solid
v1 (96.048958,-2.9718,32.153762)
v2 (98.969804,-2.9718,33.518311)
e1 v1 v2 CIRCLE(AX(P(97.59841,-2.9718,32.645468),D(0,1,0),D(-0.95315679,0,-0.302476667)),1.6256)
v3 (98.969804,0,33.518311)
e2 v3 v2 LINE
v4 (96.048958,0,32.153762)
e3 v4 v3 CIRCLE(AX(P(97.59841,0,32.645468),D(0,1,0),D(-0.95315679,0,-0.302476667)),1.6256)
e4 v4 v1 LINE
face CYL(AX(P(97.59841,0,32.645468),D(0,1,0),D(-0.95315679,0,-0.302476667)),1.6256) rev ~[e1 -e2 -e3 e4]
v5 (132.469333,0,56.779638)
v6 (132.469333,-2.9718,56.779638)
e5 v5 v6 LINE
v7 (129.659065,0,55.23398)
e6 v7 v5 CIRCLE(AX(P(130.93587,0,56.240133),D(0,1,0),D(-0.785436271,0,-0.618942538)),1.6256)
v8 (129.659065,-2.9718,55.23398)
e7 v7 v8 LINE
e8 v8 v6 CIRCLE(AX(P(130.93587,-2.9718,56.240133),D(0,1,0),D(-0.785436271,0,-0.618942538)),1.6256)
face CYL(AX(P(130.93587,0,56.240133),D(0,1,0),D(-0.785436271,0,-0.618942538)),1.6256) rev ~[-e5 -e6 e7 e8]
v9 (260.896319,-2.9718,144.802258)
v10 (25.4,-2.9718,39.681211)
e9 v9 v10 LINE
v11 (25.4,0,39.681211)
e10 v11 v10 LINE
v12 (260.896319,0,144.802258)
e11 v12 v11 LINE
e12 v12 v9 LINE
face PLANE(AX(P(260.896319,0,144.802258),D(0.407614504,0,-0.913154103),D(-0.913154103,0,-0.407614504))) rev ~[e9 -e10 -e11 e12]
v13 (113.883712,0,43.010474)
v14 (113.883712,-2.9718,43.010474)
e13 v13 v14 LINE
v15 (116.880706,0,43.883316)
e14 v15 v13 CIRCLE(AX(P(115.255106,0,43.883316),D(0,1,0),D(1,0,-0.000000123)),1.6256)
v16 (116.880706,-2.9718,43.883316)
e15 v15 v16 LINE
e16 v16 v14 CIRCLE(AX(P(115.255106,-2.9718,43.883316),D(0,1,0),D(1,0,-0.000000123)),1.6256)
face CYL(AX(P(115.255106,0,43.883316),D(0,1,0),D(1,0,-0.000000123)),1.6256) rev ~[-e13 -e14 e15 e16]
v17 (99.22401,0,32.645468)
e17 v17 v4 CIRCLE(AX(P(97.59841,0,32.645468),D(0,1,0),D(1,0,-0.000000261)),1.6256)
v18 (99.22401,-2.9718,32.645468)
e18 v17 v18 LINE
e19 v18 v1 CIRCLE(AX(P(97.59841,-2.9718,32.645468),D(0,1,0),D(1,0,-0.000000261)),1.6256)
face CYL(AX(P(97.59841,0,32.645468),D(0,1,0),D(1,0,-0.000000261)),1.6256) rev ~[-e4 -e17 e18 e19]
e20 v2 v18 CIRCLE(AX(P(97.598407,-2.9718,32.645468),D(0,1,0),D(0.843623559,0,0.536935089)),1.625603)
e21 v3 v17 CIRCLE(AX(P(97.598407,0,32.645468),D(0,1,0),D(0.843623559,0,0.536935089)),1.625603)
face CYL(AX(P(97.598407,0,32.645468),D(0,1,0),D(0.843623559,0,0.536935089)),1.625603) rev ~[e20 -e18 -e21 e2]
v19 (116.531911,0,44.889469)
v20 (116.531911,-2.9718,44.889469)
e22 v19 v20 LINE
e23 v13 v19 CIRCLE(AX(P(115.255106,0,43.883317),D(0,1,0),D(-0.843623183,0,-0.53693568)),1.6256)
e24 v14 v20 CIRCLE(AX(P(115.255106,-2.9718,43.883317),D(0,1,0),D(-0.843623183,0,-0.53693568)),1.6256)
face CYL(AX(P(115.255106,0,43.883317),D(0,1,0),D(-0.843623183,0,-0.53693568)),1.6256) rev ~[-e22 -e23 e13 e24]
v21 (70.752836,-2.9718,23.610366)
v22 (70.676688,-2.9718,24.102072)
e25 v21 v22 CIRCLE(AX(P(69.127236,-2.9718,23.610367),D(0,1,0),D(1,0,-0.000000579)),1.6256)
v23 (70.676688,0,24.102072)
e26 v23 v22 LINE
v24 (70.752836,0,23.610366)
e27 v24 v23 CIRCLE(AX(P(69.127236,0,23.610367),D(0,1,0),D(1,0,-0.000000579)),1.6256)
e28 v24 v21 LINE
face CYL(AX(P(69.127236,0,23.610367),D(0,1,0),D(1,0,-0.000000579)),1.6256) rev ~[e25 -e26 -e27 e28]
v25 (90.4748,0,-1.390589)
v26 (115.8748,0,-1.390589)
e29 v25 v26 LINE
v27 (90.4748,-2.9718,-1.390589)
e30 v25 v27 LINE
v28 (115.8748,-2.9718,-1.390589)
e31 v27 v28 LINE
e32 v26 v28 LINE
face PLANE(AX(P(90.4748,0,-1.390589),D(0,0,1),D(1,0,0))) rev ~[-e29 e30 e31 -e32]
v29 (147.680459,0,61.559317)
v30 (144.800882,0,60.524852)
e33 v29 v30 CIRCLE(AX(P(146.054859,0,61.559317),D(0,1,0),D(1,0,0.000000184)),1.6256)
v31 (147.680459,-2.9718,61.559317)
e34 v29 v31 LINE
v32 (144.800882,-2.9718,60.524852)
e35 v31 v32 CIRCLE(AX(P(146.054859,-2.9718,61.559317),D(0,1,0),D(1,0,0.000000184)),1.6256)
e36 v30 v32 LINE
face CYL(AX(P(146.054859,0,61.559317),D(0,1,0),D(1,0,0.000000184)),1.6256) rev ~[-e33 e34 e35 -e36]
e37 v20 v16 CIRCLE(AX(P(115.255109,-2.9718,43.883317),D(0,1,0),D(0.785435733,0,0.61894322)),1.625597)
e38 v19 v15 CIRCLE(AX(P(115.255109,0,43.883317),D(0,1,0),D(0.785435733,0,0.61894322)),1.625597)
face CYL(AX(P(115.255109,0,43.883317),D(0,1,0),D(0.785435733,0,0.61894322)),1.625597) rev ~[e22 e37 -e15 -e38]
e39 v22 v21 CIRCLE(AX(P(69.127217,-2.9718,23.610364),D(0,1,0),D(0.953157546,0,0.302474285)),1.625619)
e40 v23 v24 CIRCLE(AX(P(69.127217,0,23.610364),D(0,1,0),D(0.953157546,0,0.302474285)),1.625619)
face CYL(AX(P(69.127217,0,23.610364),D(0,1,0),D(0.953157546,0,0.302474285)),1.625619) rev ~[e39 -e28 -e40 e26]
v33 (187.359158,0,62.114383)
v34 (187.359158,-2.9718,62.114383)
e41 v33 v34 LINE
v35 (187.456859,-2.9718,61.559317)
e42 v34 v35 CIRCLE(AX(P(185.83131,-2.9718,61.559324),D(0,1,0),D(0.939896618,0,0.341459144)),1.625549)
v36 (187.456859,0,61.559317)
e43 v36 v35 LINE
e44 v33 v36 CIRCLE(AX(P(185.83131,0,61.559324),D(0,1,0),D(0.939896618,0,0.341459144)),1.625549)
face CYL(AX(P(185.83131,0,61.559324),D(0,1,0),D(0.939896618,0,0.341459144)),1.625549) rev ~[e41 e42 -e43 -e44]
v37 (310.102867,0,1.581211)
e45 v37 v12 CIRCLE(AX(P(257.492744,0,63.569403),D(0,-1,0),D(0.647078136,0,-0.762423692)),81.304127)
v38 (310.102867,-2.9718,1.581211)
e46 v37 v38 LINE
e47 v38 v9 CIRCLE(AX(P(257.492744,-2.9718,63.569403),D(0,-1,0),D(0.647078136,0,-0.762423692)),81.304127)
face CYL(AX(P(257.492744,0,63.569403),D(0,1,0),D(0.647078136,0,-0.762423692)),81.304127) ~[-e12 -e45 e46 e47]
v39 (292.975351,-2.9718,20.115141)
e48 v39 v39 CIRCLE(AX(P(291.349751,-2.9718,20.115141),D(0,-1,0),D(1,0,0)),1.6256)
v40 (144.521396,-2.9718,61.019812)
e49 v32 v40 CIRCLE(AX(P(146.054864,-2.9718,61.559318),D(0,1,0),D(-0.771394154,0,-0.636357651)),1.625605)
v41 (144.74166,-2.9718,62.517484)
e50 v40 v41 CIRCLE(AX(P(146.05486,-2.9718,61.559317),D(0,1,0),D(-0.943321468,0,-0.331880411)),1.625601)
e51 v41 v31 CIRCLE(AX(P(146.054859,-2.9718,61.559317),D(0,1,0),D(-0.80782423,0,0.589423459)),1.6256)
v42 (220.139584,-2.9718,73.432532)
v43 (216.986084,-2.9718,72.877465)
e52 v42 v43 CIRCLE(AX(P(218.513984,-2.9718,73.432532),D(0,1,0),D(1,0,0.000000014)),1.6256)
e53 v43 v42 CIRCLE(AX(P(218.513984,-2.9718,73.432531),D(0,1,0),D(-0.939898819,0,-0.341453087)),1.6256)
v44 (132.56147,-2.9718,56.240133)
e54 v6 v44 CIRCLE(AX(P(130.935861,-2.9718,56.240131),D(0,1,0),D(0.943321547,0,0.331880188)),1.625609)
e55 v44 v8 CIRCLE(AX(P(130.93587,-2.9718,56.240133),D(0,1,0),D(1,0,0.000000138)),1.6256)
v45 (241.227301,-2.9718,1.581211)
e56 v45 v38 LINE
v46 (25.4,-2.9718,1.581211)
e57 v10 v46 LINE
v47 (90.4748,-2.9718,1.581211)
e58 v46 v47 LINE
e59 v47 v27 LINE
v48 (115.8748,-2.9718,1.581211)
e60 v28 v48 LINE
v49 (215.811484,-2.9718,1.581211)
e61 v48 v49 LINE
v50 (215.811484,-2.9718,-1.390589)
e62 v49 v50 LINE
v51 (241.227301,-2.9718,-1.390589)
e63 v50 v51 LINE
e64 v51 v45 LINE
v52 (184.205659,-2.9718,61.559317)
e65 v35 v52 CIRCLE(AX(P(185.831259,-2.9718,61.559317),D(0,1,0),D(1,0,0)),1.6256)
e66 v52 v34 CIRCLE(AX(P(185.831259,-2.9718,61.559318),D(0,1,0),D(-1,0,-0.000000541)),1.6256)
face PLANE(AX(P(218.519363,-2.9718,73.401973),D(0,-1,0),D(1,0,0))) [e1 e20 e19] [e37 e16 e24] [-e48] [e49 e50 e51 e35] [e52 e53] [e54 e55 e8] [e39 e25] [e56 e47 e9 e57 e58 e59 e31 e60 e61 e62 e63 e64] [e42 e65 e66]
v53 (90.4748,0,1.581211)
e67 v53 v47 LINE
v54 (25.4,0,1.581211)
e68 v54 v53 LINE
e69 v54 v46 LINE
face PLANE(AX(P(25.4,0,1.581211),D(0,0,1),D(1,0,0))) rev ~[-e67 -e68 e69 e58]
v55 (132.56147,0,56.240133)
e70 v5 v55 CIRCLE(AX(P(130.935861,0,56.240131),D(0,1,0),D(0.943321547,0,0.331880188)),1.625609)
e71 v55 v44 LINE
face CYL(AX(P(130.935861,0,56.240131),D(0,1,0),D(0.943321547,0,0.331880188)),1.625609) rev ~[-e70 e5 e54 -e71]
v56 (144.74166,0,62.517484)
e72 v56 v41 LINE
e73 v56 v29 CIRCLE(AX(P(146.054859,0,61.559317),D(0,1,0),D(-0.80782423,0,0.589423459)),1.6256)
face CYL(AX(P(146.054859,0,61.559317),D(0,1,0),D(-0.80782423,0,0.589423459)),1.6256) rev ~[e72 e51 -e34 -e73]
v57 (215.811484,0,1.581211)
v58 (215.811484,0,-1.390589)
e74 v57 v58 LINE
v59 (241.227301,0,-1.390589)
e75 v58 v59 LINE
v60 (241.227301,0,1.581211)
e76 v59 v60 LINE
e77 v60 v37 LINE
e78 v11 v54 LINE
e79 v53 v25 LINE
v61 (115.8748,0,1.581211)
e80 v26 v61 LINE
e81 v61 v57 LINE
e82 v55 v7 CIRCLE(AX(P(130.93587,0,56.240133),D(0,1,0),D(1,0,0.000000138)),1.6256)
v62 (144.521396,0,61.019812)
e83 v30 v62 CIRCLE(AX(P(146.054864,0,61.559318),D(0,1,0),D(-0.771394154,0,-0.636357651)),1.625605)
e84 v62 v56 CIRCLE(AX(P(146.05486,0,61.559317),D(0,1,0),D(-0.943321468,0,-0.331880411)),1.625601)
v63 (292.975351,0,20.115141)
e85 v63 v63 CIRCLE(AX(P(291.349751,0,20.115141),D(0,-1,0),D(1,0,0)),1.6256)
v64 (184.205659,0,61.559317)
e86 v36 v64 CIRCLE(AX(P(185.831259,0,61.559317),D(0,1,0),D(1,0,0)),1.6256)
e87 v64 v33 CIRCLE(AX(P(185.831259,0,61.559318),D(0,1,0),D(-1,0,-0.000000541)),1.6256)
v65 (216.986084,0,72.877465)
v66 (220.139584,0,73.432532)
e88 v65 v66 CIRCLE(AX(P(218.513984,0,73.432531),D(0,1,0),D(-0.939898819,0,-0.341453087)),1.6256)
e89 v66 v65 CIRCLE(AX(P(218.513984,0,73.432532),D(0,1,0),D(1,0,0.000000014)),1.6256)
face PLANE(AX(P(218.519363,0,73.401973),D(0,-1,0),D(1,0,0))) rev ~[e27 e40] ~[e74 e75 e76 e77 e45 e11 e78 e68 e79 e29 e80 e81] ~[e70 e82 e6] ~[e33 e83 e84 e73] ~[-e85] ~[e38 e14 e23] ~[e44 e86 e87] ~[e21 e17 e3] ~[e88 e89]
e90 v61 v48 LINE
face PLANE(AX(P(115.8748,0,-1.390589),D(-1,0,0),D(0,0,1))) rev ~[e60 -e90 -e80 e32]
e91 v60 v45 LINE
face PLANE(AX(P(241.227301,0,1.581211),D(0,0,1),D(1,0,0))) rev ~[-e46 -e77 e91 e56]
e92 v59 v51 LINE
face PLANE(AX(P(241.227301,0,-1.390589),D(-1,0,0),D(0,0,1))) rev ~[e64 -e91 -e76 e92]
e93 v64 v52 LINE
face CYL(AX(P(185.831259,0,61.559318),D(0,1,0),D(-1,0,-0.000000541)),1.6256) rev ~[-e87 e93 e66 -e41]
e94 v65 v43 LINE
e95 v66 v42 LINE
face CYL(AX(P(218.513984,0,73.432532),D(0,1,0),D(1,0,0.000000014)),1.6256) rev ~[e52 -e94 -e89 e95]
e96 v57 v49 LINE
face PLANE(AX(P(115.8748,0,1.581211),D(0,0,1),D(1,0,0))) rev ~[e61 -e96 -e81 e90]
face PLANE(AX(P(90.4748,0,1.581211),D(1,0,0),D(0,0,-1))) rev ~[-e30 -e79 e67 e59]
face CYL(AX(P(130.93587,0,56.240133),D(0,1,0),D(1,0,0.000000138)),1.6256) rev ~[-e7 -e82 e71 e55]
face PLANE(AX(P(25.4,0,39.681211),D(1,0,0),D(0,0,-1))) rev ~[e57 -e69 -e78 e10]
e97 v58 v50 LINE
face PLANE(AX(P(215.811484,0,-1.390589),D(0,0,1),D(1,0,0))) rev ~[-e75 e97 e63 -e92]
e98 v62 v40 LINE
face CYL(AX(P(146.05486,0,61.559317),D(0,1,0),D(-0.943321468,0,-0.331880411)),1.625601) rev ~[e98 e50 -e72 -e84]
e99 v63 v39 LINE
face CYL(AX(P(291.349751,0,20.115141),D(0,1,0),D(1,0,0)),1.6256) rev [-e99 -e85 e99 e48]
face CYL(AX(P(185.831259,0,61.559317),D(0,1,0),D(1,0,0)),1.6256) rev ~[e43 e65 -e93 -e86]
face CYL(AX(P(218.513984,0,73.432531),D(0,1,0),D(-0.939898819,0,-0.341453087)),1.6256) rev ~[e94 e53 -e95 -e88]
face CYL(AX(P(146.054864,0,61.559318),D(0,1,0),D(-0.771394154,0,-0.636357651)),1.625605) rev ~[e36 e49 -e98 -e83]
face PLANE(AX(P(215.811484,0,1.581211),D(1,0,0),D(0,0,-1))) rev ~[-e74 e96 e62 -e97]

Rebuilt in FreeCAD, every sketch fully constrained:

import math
import FreeCAD as App
import Part
import Sketcher
from FreeCAD import Vector
Q = App.Units.Quantity

doc = App.newDocument("Part")
params = doc.addObject("Spreadsheet::Sheet", "Params")
for row, (alias, value) in enumerate([
    ("sketch1_width", "1 in"),
    ("sketch1_diameter", "0.128 in"),
    ("sketch1_height", "1.5 in"),
    ("sketch1_radius", "0.064 in"),
    ("sketch1_radius2", "0.064 in"),
    ("pad1_length", "0.117 in"),
], start=1):
    params.set(f"A{row}", alias)
    params.set(f"B{row}", "=" + value)
    params.setAlias(f"B{row}", alias)

body = doc.addObject("PartDesign::Body", "Body")

sketch1 = body.newObject("Sketcher::SketchObject", "Sketch")
sketch1.AttachmentSupport = (doc.getObject("XZ_Plane"), [""])
sketch1.MapMode = "FlatFace"
sketch1.addGeometry([
    Part.LineSegment(Vector(260.896319, 144.802258, 0), Vector(25.4, 39.681211, 0)),
    Part.LineSegment(Vector(25.4, 39.681211, 0), Vector(25.4, 1.581211, 0)),
    Part.LineSegment(Vector(25.4, 1.581211, 0), Vector(90.4748, 1.581211, 0)),
    Part.LineSegment(Vector(90.4748, 1.581211, 0), Vector(90.4748, -1.390589, 0)),
    Part.LineSegment(Vector(90.4748, -1.390589, 0), Vector(115.8748, -1.390589, 0)),
    Part.LineSegment(Vector(115.8748, -1.390589, 0), Vector(115.8748, 1.581211, 0)),
    Part.LineSegment(Vector(115.8748, 1.581211, 0), Vector(215.811484, 1.581211, 0)),
    Part.LineSegment(Vector(215.811484, 1.581211, 0), Vector(215.811484, -1.390589, 0)),
    Part.LineSegment(Vector(215.811484, -1.390589, 0), Vector(241.227301, -1.390589, 0)),
    Part.LineSegment(Vector(241.227301, -1.390589, 0), Vector(241.227301, 1.581211, 0)),
    Part.LineSegment(Vector(241.227301, 1.581211, 0), Vector(310.102867, 1.581211, 0)),
    Part.ArcOfCircle(Part.Circle(Vector(257.492744, 63.569403, 0), Vector(0, 0, 1), 81.304127), math.radians(-49.678334), math.radians(87.600768)),
    Part.ArcOfCircle(Part.Circle(Vector(69.127217, 23.610364, 0), Vector(0, 0, 1), 1.625619), math.radians(0.000072), math.radians(17.606275)),
    Part.ArcOfCircle(Part.Circle(Vector(69.127236, 23.610367, 0), Vector(0, 0, 1), 1.6256), math.radians(17.606381), math.radians(359.999967)),
    Part.ArcOfCircle(Part.Circle(Vector(97.59841, 32.645468, 0), Vector(0, 0, 1), 1.6256), math.radians(-162.393571), math.radians(-0.000015)),
    Part.ArcOfCircle(Part.Circle(Vector(97.59841, 32.645468, 0), Vector(0, 0, 1), 1.6256), math.radians(32.475282), math.radians(197.606418)),
    Part.ArcOfCircle(Part.Circle(Vector(97.598407, 32.645468, 0), Vector(0, 0, 1), 1.625603), math.radians(0.000009), math.radians(32.47524)),
    Part.ArcOfCircle(Part.Circle(Vector(115.255106, 43.883316, 0), Vector(0, 0, 1), 1.6256), math.radians(-147.524737), math.radians(-0.000007)),
    Part.ArcOfCircle(Part.Circle(Vector(115.255106, 43.883317, 0), Vector(0, 0, 1), 1.6256), math.radians(38.238937), math.radians(212.47528)),
    Part.ArcOfCircle(Part.Circle(Vector(115.255109, 43.883317, 0), Vector(0, 0, 1), 1.625597), math.radians(-0.00003), math.radians(38.239004)),
    Part.Circle(Vector(291.349751, 20.115141, 0), Vector(0, 0, 1), 1.6256),
    Part.ArcOfCircle(Part.Circle(Vector(130.93587, 56.240133, 0), Vector(0, 0, 1), 1.6256), math.radians(-141.761051), math.radians(0.000008)),
    Part.ArcOfCircle(Part.Circle(Vector(130.93587, 56.240133, 0), Vector(0, 0, 1), 1.6256), math.radians(19.382965), math.radians(218.238954)),
    Part.ArcOfCircle(Part.Circle(Vector(130.935861, 56.240131, 0), Vector(0, 0, 1), 1.625609), math.radians(0.000085), math.radians(19.382935)),
    Part.ArcOfCircle(Part.Circle(Vector(146.05486, 61.559317, 0), Vector(0, 0, 1), 1.625601), math.radians(143.883922), math.radians(199.382949)),
    Part.ArcOfCircle(Part.Circle(Vector(146.054859, 61.559317, 0), Vector(0, 0, 1), 1.6256), math.radians(-0.000009), math.radians(143.883894)),
    Part.ArcOfCircle(Part.Circle(Vector(146.054859, 61.559317, 0), Vector(0, 0, 1), 1.6256), math.radians(-140.479171), math.radians(0.000011)),
    Part.ArcOfCircle(Part.Circle(Vector(146.054864, 61.559318, 0), Vector(0, 0, 1), 1.625605), math.radians(-160.617062), math.radians(-140.479248)),
    Part.ArcOfCircle(Part.Circle(Vector(185.831259, 61.559317, 0), Vector(0, 0, 1), 1.6256), math.radians(180), math.radians(360)),
    Part.ArcOfCircle(Part.Circle(Vector(185.831259, 61.559318, 0), Vector(0, 0, 1), 1.6256), math.radians(19.965396), math.radians(180.000031)),
    Part.ArcOfCircle(Part.Circle(Vector(185.83131, 61.559324, 0), Vector(0, 0, 1), 1.625549), math.radians(-0.00026), math.radians(19.965798)),
    Part.ArcOfCircle(Part.Circle(Vector(218.513984, 73.432532, 0), Vector(0, 0, 1), 1.6256), math.radians(-160.034545), math.radians(0.000001)),
    Part.ArcOfCircle(Part.Circle(Vector(218.513984, 73.432531, 0), Vector(0, 0, 1), 1.6256), math.radians(0.000027), math.radians(199.965429)),
], False)
sketch1.addConstraint([
    Sketcher.Constraint("Coincident", 0, 2, 1, 1),
    Sketcher.Constraint("Coincident", 1, 2, 2, 1),
    Sketcher.Constraint("Coincident", 2, 2, 3, 1),
    Sketcher.Constraint("Coincident", 3, 2, 4, 1),
    Sketcher.Constraint("Coincident", 4, 2, 5, 1),
    Sketcher.Constraint("Coincident", 5, 2, 6, 1),
    Sketcher.Constraint("Coincident", 6, 2, 7, 1),
    Sketcher.Constraint("Coincident", 7, 2, 8, 1),
    Sketcher.Constraint("Coincident", 8, 2, 9, 1),
    Sketcher.Constraint("Coincident", 9, 2, 10, 1),
    Sketcher.Constraint("Coincident", 10, 2, 11, 1),
    Sketcher.Constraint("Coincident", 11, 2, 0, 1),
    Sketcher.Constraint("Coincident", 12, 1, 13, 2),
    Sketcher.Constraint("Coincident", 13, 1, 12, 2),
    Sketcher.Constraint("Coincident", 14, 1, 15, 2),
    Sketcher.Constraint("Coincident", 15, 1, 16, 2),
    Sketcher.Constraint("Coincident", 16, 1, 14, 2),
    Sketcher.Constraint("Coincident", 17, 1, 18, 2),
    Sketcher.Constraint("Coincident", 18, 1, 19, 2),
    Sketcher.Constraint("Coincident", 19, 1, 17, 2),
    Sketcher.Constraint("Coincident", 21, 1, 22, 2),
    Sketcher.Constraint("Coincident", 22, 1, 23, 2),
    Sketcher.Constraint("Coincident", 23, 1, 21, 2),
    Sketcher.Constraint("Coincident", 24, 1, 25, 2),
    Sketcher.Constraint("Coincident", 25, 1, 26, 2),
    Sketcher.Constraint("Coincident", 26, 1, 27, 2),
    Sketcher.Constraint("Coincident", 27, 1, 24, 2),
    Sketcher.Constraint("Coincident", 28, 1, 29, 2),
    Sketcher.Constraint("Coincident", 29, 1, 30, 2),
    Sketcher.Constraint("Coincident", 30, 1, 28, 2),
    Sketcher.Constraint("Coincident", 31, 1, 32, 2),
    Sketcher.Constraint("Coincident", 32, 1, 31, 2),
    Sketcher.Constraint("Vertical", 1),
    Sketcher.Constraint("Horizontal", 2),
    Sketcher.Constraint("Vertical", 3),
    Sketcher.Constraint("Horizontal", 4),
    Sketcher.Constraint("Vertical", 5),
    Sketcher.Constraint("Horizontal", 6),
    Sketcher.Constraint("Vertical", 7),
    Sketcher.Constraint("Horizontal", 8),
    Sketcher.Constraint("Vertical", 9),
    Sketcher.Constraint("Horizontal", 10),
    Sketcher.Constraint("Coincident", 15, 3, 14, 3),
    Sketcher.Constraint("Coincident", 18, 3, 17, 3),
    Sketcher.Constraint("Coincident", 22, 3, 21, 3),
    Sketcher.Constraint("Coincident", 25, 3, 24, 3),
    Sketcher.Constraint("Coincident", 26, 3, 24, 3),
    Sketcher.Constraint("Coincident", 29, 3, 28, 3),
    Sketcher.Constraint("DistanceX", 4, 1, 4, 2, Q("1 in")),
    Sketcher.Constraint("Diameter", 20, Q("0.128 in")),
    Sketcher.Constraint("DistanceY", 1, 2, 1, 1, Q("1.5 in")),
    Sketcher.Constraint("DistanceX", -1, 1, 0, 2, Q("1 in")),
    Sketcher.Constraint("Radius", 13, Q("0.064 in")),
    Sketcher.Constraint("Radius", 14, Q("0.064 in")),
    Sketcher.Constraint("Radius", 16, Q("0.0640001 in")),
    Sketcher.Constraint("Radius", 17, Q("0.064 in")),
    Sketcher.Constraint("Radius", 19, Q("0.0639999 in")),
    Sketcher.Constraint("Radius", 21, Q("0.064 in")),
    Sketcher.Constraint("Radius", 24, Q("0.064 in")),
    Sketcher.Constraint("Radius", 27, Q("0.0640002 in")),
    Sketcher.Constraint("Radius", 28, Q("0.064 in")),
    Sketcher.Constraint("Radius", 31, Q("0.064 in")),
    Sketcher.Constraint("Radius", 32, Q("0.064 in")),
    Sketcher.Constraint("DistanceX", 2, 1, 2, 2, Q("2.562 in")),
    Sketcher.Constraint("DistanceY", 3, 2, 3, 1, Q("0.117 in")),
    Sketcher.Constraint("DistanceY", 5, 1, 5, 2, Q("0.117 in")),
    Sketcher.Constraint("DistanceY", 7, 2, 7, 1, Q("0.117 in")),
    Sketcher.Constraint("DistanceY", 9, 1, 9, 2, Q("0.117 in")),
    Sketcher.Constraint("Radius", 12, Q("1.625619 mm")),
    Sketcher.Constraint("Radius", 23, Q("1.625609 mm")),
    Sketcher.Constraint("Radius", 30, Q("1.625549 mm")),
    Sketcher.Constraint("DistanceX", 24, 3, 28, 3, Q("1.5659999 in")),
    Sketcher.Constraint("Radius", 11, Q("81.304127 mm")),
    Sketcher.Constraint("DistanceX", -1, 1, 8, 2, Q("241.227301 mm")),
    Sketcher.Constraint("DistanceY", 13, 3, 14, 3, Q("9.035101 mm")),
    Sketcher.Constraint("DistanceX", 16, 3, 17, 3, Q("17.656699 mm")),
    Sketcher.Constraint("DistanceX", 23, 3, 24, 3, Q("15.118999 mm")),
    Sketcher.Constraint("DistanceY", 19, 3, 24, 3, Q("17.676 mm")),
    Sketcher.Constraint("DistanceX", 6, 2, 32, 3, Q("2.7025 mm")),
    Sketcher.Constraint("DistanceY", 12, 1, 16, 3, Q("9.035102 mm")),
    Sketcher.Constraint("DistanceX", 15, 1, 18, 3, Q("16.285302 mm")),
    Sketcher.Constraint("DistanceX", 19, 3, 18, 1, Q("1.276802 mm")),
    Sketcher.Constraint("DistanceX", 17, 1, 18, 1, Q("2.648199 mm")),
    Sketcher.Constraint("DistanceX", 24, 1, 25, 3, Q("1.313199 mm")),
    Sketcher.Constraint("DistanceX", 28, 3, 29, 1, Q("1.527899 mm")),
    Sketcher.Constraint("DistanceX", 31, 1, 32, 3, Q("1.5279 mm")),
    Sketcher.Constraint("DistanceX", 6, 1, 6, 2, Q("99.936684 mm")),
    Sketcher.Constraint("DistanceX", 10, 1, 10, 2, Q("68.875566 mm")),
    Sketcher.Constraint("DistanceX", -1, 1, 14, 3, Q("97.59841 mm")),
    Sketcher.Constraint("DistanceY", -1, 1, 14, 3, Q("32.645468 mm")),
    Sketcher.Constraint("DistanceX", -1, 1, 20, 3, Q("291.349751 mm")),
    Sketcher.Constraint("DistanceY", -1, 1, 20, 3, Q("20.115141 mm")),
    Sketcher.Constraint("DistanceX", -1, 1, 21, 3, Q("130.93587 mm")),
    Sketcher.Constraint("DistanceY", -1, 1, 23, 3, Q("56.240131 mm")),
    Sketcher.Constraint("DistanceY", -1, 1, 27, 3, Q("61.559318 mm")),
    Sketcher.Constraint("DistanceY", -1, 1, 31, 3, Q("73.432532 mm")),
    Sketcher.Constraint("DistanceY", -1, 1, 0, 2, Q("39.681211 mm")),
    Sketcher.Constraint("DistanceX", -1, 1, 11, 2, Q("260.896319 mm")),
    Sketcher.Constraint("DistanceY", -1, 1, 11, 2, Q("144.802258 mm")),
    Sketcher.Constraint("DistanceX", -1, 1, 13, 1, Q("70.676688 mm")),
    Sketcher.Constraint("DistanceX", -1, 1, 14, 1, Q("96.048958 mm")),
    Sketcher.Constraint("DistanceY", -1, 1, 21, 1, Q("55.23398 mm")),
    Sketcher.Constraint("DistanceY", -1, 1, 32, 1, Q("73.432532 mm")),
    Sketcher.Constraint("DistanceX", 13, 3, 11, 3, Q("188.365508 mm")),
    Sketcher.Constraint("DistanceY", 29, 3, 11, 2, Q("83.24294 mm")),
    Sketcher.Constraint("DistanceY", 17, 1, 19, 1, Q("0.872842 mm")),
    Sketcher.Constraint("DistanceX", 23, 3, 22, 1, Q("1.533472 mm")),
    Sketcher.Constraint("DistanceX", 26, 1, 24, 3, Q("1.253978 mm")),
    Sketcher.Constraint("DistanceY", 26, 1, 27, 1, Q("0.49496 mm")),
    Sketcher.Constraint("DistanceY", 30, 1, 31, 1, Q("11.318148 mm")),
    Sketcher.Constraint("DistanceY", -1, 1, 16, 1, Q("32.645468 mm")),
    Sketcher.Constraint("DistanceY", -1, 1, 23, 1, Q("56.240133 mm")),
    Sketcher.Constraint("DistanceY", -1, 1, 25, 1, Q("61.559317 mm")),
    Sketcher.Constraint("DistanceY", -1, 1, 28, 1, Q("61.559317 mm")),
])
sketch1.setExpression("Constraints[48]", "Params.sketch1_width")
sketch1.setExpression("Constraints[49]", "Params.sketch1_diameter")
sketch1.setExpression("Constraints[50]", "Params.sketch1_height")
sketch1.setExpression("Constraints[52]", "Params.sketch1_radius")
sketch1.setExpression("Constraints[53]", "Params.sketch1_radius2")
pad1 = body.newObject("PartDesign::Pad", "Pad")
pad1.Profile = sketch1
pad1.setExpression("Length", "Params.pad1_length")

doc.recompute()
